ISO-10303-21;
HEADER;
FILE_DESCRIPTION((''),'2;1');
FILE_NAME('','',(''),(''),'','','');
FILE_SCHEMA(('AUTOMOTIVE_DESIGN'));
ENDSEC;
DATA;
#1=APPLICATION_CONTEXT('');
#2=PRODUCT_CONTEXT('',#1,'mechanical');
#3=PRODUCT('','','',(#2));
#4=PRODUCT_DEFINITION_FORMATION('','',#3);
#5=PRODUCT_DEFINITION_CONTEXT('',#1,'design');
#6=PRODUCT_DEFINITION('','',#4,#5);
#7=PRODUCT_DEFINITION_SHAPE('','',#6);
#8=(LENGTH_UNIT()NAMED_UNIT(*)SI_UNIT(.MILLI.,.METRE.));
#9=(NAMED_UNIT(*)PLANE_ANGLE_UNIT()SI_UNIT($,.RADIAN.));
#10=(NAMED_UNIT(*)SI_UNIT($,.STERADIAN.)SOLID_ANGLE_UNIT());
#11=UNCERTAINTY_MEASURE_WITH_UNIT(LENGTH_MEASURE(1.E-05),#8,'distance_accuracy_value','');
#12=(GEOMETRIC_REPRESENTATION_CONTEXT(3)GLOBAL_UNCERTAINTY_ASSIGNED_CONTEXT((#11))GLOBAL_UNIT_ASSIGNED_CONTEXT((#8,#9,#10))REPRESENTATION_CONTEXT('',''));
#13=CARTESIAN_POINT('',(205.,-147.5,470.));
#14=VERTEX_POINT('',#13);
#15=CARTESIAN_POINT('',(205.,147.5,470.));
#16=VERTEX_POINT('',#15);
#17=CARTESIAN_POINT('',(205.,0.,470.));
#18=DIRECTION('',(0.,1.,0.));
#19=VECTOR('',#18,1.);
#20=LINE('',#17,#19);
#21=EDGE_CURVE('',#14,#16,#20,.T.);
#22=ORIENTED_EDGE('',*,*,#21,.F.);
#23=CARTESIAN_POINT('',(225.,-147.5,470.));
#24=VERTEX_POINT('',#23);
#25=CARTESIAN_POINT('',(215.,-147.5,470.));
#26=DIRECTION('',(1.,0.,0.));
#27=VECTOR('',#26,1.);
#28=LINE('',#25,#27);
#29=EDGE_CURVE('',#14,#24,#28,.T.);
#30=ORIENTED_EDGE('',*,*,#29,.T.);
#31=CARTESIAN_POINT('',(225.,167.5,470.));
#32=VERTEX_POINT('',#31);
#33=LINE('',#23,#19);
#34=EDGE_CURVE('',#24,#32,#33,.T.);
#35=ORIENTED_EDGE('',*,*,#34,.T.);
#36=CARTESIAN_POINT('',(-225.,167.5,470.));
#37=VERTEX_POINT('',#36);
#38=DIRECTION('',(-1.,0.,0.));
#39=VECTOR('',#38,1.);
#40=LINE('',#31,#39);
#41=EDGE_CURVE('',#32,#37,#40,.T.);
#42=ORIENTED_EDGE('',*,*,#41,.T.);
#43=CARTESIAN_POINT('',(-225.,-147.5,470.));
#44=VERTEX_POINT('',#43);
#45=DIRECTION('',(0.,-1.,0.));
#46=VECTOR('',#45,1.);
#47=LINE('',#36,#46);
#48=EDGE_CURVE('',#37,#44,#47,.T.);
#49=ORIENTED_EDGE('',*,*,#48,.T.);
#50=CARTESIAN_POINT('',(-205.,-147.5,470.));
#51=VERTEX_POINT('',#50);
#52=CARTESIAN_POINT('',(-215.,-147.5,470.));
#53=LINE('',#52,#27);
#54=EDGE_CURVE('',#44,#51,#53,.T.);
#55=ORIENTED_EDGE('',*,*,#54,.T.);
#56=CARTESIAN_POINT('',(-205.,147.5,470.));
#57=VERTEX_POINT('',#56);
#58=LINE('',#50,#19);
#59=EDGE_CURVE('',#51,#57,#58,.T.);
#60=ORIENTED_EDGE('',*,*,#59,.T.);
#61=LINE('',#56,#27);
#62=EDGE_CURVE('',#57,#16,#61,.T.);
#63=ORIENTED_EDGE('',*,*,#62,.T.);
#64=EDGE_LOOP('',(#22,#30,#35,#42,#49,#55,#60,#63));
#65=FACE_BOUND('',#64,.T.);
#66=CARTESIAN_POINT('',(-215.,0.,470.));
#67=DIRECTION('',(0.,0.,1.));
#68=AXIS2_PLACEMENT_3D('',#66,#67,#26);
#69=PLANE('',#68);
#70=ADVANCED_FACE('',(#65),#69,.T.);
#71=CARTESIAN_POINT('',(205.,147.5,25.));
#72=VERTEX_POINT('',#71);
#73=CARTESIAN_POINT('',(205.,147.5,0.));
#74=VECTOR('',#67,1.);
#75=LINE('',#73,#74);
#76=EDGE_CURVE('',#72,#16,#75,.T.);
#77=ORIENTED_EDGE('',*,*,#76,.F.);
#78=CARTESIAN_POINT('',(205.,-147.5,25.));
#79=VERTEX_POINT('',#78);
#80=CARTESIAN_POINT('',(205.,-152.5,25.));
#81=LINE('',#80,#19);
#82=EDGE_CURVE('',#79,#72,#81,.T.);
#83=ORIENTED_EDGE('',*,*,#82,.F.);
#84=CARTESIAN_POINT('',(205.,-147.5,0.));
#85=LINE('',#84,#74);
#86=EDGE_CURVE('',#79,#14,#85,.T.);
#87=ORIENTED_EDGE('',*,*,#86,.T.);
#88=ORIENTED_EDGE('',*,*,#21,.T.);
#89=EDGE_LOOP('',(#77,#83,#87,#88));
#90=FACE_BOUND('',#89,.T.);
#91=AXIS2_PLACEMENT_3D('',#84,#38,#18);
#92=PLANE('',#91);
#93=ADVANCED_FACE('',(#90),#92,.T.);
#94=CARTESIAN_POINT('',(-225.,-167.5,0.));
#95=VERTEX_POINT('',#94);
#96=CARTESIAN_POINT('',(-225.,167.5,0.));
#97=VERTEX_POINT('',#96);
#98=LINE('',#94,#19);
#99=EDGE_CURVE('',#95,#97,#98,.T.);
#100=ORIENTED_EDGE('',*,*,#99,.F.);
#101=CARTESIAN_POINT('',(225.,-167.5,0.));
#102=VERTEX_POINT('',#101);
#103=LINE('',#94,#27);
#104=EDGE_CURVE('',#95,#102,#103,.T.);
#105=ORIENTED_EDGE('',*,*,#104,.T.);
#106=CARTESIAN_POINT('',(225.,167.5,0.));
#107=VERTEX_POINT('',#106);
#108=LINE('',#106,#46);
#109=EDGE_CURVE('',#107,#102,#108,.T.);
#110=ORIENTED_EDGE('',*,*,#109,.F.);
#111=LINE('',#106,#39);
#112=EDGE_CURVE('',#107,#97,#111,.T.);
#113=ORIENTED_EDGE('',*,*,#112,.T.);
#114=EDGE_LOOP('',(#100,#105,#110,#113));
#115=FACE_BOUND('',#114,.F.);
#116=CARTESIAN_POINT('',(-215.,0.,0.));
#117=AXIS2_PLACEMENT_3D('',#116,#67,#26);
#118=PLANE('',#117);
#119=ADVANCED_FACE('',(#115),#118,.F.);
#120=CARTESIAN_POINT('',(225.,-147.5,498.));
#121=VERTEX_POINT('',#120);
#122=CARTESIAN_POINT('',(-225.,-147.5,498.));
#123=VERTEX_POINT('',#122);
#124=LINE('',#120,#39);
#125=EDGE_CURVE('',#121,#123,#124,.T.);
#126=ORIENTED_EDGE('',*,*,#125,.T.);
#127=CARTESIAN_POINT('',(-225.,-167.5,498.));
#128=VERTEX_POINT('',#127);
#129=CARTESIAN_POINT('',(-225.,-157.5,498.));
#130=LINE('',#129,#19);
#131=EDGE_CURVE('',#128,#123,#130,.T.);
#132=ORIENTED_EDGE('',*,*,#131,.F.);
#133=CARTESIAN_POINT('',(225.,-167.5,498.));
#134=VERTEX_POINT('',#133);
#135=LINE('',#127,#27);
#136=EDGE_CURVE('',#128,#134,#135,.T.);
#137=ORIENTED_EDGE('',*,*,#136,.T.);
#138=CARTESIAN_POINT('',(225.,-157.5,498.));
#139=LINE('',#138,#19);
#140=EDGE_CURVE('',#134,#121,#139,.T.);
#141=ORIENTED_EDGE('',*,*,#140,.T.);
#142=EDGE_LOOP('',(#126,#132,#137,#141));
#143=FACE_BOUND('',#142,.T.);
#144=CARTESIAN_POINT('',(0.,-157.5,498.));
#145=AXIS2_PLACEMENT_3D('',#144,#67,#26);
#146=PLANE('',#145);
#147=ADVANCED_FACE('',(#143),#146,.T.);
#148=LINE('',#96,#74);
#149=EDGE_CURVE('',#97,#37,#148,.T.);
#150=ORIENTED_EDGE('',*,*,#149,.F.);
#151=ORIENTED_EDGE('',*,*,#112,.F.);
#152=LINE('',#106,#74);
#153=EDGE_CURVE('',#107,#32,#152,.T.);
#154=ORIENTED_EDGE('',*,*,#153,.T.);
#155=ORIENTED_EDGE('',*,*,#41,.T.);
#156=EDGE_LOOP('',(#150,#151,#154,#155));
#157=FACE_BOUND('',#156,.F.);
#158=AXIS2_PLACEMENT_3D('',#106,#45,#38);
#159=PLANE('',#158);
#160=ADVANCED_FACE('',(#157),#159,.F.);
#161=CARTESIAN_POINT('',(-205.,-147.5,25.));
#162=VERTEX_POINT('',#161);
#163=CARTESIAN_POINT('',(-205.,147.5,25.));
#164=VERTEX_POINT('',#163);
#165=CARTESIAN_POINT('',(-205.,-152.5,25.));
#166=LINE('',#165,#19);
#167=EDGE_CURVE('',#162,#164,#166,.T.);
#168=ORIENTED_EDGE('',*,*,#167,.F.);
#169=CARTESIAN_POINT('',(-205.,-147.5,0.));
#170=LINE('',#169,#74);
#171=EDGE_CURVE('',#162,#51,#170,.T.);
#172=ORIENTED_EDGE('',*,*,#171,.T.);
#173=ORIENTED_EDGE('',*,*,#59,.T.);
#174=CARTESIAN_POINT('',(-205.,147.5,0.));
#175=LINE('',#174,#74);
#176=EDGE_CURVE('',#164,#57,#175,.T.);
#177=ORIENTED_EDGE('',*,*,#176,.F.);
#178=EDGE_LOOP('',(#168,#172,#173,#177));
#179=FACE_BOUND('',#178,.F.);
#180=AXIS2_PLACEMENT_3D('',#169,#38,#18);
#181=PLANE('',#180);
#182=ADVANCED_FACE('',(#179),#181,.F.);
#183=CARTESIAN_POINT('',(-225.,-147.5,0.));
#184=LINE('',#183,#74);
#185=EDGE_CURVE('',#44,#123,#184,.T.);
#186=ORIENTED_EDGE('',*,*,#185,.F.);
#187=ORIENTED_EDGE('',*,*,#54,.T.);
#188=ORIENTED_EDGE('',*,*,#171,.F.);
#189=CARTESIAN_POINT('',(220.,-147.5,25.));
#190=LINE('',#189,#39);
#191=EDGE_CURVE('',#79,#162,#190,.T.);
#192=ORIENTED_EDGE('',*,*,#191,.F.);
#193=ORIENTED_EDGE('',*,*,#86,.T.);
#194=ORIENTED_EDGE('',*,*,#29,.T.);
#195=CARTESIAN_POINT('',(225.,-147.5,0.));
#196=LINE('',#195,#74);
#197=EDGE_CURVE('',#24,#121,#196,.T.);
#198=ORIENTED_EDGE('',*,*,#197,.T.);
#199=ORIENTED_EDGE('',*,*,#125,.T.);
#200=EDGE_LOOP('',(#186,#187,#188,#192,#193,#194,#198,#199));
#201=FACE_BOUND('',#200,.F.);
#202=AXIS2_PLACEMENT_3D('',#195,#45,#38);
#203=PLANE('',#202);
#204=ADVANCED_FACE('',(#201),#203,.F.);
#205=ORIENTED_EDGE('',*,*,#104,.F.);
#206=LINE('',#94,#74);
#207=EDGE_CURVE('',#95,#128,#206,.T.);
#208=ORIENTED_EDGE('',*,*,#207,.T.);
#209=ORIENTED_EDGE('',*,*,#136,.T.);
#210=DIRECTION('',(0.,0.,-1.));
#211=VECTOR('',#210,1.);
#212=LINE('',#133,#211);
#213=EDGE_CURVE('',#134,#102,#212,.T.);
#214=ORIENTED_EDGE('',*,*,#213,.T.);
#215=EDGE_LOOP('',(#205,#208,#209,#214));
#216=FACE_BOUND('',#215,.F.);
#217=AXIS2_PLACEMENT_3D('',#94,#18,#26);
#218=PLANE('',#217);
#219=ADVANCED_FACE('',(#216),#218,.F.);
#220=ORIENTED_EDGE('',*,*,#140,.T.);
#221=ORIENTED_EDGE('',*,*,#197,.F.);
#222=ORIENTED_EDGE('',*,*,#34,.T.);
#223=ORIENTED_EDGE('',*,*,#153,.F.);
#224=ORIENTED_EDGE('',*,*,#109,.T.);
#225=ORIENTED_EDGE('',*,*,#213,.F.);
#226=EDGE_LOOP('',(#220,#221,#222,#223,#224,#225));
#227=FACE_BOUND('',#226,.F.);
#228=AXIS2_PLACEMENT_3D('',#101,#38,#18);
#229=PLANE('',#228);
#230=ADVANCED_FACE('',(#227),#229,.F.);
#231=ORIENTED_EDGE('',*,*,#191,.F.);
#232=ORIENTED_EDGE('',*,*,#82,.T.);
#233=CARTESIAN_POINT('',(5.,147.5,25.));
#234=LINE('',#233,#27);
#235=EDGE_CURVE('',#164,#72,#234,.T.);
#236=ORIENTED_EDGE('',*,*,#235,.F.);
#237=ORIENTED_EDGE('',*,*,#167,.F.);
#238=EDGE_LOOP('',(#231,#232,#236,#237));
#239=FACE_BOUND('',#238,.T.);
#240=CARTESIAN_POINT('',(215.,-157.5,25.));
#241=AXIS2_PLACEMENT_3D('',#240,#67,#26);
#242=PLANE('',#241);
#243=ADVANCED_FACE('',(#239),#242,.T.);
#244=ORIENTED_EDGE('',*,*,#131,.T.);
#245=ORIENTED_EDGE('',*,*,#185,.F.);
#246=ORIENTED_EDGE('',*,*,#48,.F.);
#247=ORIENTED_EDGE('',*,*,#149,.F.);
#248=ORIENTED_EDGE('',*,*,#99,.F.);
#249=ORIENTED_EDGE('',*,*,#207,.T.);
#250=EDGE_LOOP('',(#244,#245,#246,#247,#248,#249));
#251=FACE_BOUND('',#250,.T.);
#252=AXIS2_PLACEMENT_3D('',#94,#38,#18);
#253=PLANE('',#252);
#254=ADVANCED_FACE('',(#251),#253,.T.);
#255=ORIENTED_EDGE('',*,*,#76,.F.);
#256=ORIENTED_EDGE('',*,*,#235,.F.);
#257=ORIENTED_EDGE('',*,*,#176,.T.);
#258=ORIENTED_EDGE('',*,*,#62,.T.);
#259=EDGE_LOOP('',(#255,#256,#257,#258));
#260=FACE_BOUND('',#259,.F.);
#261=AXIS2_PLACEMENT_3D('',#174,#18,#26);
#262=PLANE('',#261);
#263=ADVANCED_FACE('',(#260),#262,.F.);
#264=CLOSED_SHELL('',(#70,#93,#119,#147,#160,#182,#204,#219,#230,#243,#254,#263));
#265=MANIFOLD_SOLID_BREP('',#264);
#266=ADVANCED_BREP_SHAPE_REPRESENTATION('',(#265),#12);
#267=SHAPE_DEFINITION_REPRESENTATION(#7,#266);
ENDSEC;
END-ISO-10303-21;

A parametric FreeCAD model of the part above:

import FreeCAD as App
import Part
import Sketcher
Q = App.Units.Quantity

doc = App.newDocument("Part")
body = doc.addObject("PartDesign::Body", "Body")

sketch1 = doc.addObject("Sketcher::SketchObject", "Sketch")
body.addObject(sketch1)
sketch1.AttachmentSupport = (doc.XY_Plane, [""])
sketch1.MapMode = "FlatFace"
sketch1.addGeometry([
    Part.LineSegment(App.Vector(-225, -148, 0), App.Vector(-225, -168, 0)),
    Part.LineSegment(App.Vector(-225, -168, 0), App.Vector(225, -168, 0)),
    Part.LineSegment(App.Vector(225, -168, 0), App.Vector(225, -148, 0)),
    Part.LineSegment(App.Vector(225, -148, 0), App.Vector(-225, -148, 0)),
], False)
sketch1.addConstraint([
    Sketcher.Constraint("Coincident", 0, 2, 1, 1),
    Sketcher.Constraint("Coincident", 1, 2, 2, 1),
    Sketcher.Constraint("Coincident", 2, 2, 3, 1),
    Sketcher.Constraint("Coincident", 3, 2, 0, 1),
    Sketcher.Constraint("Vertical", 0),
    Sketcher.Constraint("Horizontal", 1),
    Sketcher.Constraint("Vertical", 2),
    Sketcher.Constraint("Horizontal", 3),
    Sketcher.Constraint("DistanceX", 1, 1, 1, 2, Q("450 mm")),
    Sketcher.Constraint("DistanceY", 0, 2, 0, 1, Q("20 mm")),
    Sketcher.Constraint("DistanceX", 0, 2, -1, 1, Q("225 mm")),
    Sketcher.Constraint("DistanceY", 0, 2, -1, 1, Q("167.5 mm")),
])
pad1 = doc.addObject("PartDesign::Pad", "Pad")
body.addObject(pad1)
pad1.Profile = sketch1
pad1.Length = 498

sketch2 = doc.addObject("Sketcher::SketchObject", "Sketch001")
body.addObject(sketch2)
sketch2.AttachmentSupport = (doc.XY_Plane, [""])
sketch2.MapMode = "FlatFace"
sketch2.addGeometry([
    Part.LineSegment(App.Vector(-225, -148, 0), App.Vector(-205, -148, 0)),
    Part.LineSegment(App.Vector(-205, -148, 0), App.Vector(-205, 148, 0)),
    Part.LineSegment(App.Vector(-205, 148, 0), App.Vector(205, 148, 0)),
    Part.LineSegment(App.Vector(205, 148, 0), App.Vector(205, -148, 0)),
    Part.LineSegment(App.Vector(205, -148, 0), App.Vector(225, -148, 0)),
    Part.LineSegment(App.Vector(225, -148, 0), App.Vector(225, 168, 0)),
    Part.LineSegment(App.Vector(225, 168, 0), App.Vector(-225, 168, 0)),
    Part.LineSegment(App.Vector(-225, 168, 0), App.Vector(-225, -148, 0)),
], False)
sketch2.addConstraint([
    Sketcher.Constraint("Coincident", 0, 2, 1, 1),
    Sketcher.Constraint("Coincident", 1, 2, 2, 1),
    Sketcher.Constraint("Coincident", 2, 2, 3, 1),
    Sketcher.Constraint("Coincident", 3, 2, 4, 1),
    Sketcher.Constraint("Coincident", 4, 2, 5, 1),
    Sketcher.Constraint("Coincident", 5, 2, 6, 1),
    Sketcher.Constraint("Coincident", 6, 2, 7, 1),
    Sketcher.Constraint("Coincident", 7, 2, 0, 1),
    Sketcher.Constraint("Horizontal", 0),
    Sketcher.Constraint("Vertical", 1),
    Sketcher.Constraint("Horizontal", 2),
    Sketcher.Constraint("Vertical", 3),
    Sketcher.Constraint("Horizontal", 4),
    Sketcher.Constraint("Vertical", 5),
    Sketcher.Constraint("Horizontal", 6),
    Sketcher.Constraint("Vertical", 7),
    Sketcher.Constraint("Symmetric", 0, 2, 2, 2, -1, 1),
    Sketcher.Constraint("Symmetric", 4, 2, 7, 2, -2),
    Sketcher.Constraint("DistanceX", 0, 1, 0, 2, Q("20 mm")),
    Sketcher.Constraint("DistanceX", 2, 1, 2, 2, Q("410 mm")),
    Sketcher.Constraint("DistanceY", 1, 1, 1, 2, Q("295 mm")),
    Sketcher.Constraint("DistanceY", 5, 1, 5, 2, Q("315 mm")),
])
pad2 = doc.addObject("PartDesign::Pad", "Pad001")
body.addObject(pad2)
pad2.Profile = sketch2
pad2.Length = 470

sketch3 = doc.addObject("Sketcher::SketchObject", "Sketch002")
body.addObject(sketch3)
sketch3.AttachmentSupport = (doc.XY_Plane, [""])
sketch3.MapMode = "FlatFace"
sketch3.addGeometry([
    Part.LineSegment(App.Vector(225, 168, 0), App.Vector(-225, 168, 0)),
    Part.LineSegment(App.Vector(-225, 168, 0), App.Vector(-225, -168, 0)),
    Part.LineSegment(App.Vector(-225, -168, 0), App.Vector(225, -168, 0)),
    Part.LineSegment(App.Vector(225, -168, 0), App.Vector(225, 168, 0)),
], False)
sketch3.addConstraint([
    Sketcher.Constraint("Coincident", 0, 2, 1, 1),
    Sketcher.Constraint("Coincident", 1, 2, 2, 1),
    Sketcher.Constraint("Coincident", 2, 2, 3, 1),
    Sketcher.Constraint("Coincident", 3, 2, 0, 1),
    Sketcher.Constraint("Horizontal", 0),
    Sketcher.Constraint("Vertical", 1),
    Sketcher.Constraint("Horizontal", 2),
    Sketcher.Constraint("Vertical", 3),
    Sketcher.Constraint("Symmetric", 0, 2, 2, 2, -1, 1),
    Sketcher.Constraint("DistanceX", 0, 2, 0, 1, Q("450 mm")),
    Sketcher.Constraint("DistanceY", 1, 2, 1, 1, Q("335 mm")),
])
pad3 = doc.addObject("PartDesign::Pad", "Pad002")
body.addObject(pad3)
pad3.Profile = sketch3
pad3.Length = 25

doc.recompute()
